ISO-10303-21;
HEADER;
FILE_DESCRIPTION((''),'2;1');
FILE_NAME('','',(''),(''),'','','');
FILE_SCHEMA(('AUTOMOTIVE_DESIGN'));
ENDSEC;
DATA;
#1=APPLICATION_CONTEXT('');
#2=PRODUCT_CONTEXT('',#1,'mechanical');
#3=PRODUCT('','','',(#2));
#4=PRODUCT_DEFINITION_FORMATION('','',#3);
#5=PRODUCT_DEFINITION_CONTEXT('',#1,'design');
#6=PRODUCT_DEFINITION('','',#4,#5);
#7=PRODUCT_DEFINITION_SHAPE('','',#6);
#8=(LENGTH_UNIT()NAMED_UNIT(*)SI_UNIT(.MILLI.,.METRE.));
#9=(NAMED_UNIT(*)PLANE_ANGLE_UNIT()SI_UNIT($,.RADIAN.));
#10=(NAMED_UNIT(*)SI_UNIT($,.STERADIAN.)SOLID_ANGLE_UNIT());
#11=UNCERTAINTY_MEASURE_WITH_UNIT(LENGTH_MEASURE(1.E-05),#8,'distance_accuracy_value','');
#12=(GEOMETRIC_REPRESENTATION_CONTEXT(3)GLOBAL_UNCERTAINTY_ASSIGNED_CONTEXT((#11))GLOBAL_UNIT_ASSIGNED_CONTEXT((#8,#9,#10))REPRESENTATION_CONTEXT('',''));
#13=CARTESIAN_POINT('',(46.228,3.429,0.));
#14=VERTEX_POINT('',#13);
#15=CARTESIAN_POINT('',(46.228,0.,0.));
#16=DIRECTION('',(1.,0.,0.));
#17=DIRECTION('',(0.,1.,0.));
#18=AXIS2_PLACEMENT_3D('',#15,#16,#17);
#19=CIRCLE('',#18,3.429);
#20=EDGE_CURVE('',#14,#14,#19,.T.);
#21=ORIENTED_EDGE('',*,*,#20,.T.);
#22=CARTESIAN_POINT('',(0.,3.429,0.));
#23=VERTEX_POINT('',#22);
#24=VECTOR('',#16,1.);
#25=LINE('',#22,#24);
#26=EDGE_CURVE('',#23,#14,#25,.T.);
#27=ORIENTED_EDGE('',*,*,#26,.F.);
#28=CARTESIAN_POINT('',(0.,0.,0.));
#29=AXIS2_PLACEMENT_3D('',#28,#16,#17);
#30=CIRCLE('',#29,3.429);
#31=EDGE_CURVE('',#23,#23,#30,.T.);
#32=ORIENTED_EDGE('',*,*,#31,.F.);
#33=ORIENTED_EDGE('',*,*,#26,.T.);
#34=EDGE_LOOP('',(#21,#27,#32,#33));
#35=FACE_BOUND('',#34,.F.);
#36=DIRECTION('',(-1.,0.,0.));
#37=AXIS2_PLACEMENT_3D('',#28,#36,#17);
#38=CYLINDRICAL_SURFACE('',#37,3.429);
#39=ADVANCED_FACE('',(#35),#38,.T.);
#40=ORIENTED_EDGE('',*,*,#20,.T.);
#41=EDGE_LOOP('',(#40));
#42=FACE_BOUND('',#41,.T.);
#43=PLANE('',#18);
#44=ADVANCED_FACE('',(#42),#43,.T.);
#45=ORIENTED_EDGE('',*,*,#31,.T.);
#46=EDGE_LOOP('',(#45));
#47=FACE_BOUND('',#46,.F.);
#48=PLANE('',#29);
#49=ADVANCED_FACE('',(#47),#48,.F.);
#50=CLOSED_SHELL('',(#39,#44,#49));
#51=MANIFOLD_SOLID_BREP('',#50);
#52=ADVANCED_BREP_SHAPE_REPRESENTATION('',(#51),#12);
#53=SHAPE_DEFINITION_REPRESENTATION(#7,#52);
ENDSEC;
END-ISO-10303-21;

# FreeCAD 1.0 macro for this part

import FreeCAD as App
import Part
import Sketcher
Q = App.Units.Quantity

doc = App.newDocument("Part")
body = doc.addObject("PartDesign::Body", "Body")

sketch1 = body.newObject("Sketcher::SketchObject", "Sketch")
sketch1.AttachmentSupport = (doc.getObject("YZ_Plane"), [""])
sketch1.MapMode = "FlatFace"
sketch1.addGeometry(Part.Circle(App.Vector(0, 0, 0), App.Vector(0, 0, 1), 3.4), False)
sketch1.addConstraint([
    Sketcher.Constraint("Coincident", 0, 3, -1, 1),
    Sketcher.Constraint("Diameter", 0, Q("0.27 in")),
])
pad1 = body.newObject("PartDesign::Pad", "Pad")
pad1.Profile = sketch1
pad1.Length = Q("1.82 in")

doc.recompute()
